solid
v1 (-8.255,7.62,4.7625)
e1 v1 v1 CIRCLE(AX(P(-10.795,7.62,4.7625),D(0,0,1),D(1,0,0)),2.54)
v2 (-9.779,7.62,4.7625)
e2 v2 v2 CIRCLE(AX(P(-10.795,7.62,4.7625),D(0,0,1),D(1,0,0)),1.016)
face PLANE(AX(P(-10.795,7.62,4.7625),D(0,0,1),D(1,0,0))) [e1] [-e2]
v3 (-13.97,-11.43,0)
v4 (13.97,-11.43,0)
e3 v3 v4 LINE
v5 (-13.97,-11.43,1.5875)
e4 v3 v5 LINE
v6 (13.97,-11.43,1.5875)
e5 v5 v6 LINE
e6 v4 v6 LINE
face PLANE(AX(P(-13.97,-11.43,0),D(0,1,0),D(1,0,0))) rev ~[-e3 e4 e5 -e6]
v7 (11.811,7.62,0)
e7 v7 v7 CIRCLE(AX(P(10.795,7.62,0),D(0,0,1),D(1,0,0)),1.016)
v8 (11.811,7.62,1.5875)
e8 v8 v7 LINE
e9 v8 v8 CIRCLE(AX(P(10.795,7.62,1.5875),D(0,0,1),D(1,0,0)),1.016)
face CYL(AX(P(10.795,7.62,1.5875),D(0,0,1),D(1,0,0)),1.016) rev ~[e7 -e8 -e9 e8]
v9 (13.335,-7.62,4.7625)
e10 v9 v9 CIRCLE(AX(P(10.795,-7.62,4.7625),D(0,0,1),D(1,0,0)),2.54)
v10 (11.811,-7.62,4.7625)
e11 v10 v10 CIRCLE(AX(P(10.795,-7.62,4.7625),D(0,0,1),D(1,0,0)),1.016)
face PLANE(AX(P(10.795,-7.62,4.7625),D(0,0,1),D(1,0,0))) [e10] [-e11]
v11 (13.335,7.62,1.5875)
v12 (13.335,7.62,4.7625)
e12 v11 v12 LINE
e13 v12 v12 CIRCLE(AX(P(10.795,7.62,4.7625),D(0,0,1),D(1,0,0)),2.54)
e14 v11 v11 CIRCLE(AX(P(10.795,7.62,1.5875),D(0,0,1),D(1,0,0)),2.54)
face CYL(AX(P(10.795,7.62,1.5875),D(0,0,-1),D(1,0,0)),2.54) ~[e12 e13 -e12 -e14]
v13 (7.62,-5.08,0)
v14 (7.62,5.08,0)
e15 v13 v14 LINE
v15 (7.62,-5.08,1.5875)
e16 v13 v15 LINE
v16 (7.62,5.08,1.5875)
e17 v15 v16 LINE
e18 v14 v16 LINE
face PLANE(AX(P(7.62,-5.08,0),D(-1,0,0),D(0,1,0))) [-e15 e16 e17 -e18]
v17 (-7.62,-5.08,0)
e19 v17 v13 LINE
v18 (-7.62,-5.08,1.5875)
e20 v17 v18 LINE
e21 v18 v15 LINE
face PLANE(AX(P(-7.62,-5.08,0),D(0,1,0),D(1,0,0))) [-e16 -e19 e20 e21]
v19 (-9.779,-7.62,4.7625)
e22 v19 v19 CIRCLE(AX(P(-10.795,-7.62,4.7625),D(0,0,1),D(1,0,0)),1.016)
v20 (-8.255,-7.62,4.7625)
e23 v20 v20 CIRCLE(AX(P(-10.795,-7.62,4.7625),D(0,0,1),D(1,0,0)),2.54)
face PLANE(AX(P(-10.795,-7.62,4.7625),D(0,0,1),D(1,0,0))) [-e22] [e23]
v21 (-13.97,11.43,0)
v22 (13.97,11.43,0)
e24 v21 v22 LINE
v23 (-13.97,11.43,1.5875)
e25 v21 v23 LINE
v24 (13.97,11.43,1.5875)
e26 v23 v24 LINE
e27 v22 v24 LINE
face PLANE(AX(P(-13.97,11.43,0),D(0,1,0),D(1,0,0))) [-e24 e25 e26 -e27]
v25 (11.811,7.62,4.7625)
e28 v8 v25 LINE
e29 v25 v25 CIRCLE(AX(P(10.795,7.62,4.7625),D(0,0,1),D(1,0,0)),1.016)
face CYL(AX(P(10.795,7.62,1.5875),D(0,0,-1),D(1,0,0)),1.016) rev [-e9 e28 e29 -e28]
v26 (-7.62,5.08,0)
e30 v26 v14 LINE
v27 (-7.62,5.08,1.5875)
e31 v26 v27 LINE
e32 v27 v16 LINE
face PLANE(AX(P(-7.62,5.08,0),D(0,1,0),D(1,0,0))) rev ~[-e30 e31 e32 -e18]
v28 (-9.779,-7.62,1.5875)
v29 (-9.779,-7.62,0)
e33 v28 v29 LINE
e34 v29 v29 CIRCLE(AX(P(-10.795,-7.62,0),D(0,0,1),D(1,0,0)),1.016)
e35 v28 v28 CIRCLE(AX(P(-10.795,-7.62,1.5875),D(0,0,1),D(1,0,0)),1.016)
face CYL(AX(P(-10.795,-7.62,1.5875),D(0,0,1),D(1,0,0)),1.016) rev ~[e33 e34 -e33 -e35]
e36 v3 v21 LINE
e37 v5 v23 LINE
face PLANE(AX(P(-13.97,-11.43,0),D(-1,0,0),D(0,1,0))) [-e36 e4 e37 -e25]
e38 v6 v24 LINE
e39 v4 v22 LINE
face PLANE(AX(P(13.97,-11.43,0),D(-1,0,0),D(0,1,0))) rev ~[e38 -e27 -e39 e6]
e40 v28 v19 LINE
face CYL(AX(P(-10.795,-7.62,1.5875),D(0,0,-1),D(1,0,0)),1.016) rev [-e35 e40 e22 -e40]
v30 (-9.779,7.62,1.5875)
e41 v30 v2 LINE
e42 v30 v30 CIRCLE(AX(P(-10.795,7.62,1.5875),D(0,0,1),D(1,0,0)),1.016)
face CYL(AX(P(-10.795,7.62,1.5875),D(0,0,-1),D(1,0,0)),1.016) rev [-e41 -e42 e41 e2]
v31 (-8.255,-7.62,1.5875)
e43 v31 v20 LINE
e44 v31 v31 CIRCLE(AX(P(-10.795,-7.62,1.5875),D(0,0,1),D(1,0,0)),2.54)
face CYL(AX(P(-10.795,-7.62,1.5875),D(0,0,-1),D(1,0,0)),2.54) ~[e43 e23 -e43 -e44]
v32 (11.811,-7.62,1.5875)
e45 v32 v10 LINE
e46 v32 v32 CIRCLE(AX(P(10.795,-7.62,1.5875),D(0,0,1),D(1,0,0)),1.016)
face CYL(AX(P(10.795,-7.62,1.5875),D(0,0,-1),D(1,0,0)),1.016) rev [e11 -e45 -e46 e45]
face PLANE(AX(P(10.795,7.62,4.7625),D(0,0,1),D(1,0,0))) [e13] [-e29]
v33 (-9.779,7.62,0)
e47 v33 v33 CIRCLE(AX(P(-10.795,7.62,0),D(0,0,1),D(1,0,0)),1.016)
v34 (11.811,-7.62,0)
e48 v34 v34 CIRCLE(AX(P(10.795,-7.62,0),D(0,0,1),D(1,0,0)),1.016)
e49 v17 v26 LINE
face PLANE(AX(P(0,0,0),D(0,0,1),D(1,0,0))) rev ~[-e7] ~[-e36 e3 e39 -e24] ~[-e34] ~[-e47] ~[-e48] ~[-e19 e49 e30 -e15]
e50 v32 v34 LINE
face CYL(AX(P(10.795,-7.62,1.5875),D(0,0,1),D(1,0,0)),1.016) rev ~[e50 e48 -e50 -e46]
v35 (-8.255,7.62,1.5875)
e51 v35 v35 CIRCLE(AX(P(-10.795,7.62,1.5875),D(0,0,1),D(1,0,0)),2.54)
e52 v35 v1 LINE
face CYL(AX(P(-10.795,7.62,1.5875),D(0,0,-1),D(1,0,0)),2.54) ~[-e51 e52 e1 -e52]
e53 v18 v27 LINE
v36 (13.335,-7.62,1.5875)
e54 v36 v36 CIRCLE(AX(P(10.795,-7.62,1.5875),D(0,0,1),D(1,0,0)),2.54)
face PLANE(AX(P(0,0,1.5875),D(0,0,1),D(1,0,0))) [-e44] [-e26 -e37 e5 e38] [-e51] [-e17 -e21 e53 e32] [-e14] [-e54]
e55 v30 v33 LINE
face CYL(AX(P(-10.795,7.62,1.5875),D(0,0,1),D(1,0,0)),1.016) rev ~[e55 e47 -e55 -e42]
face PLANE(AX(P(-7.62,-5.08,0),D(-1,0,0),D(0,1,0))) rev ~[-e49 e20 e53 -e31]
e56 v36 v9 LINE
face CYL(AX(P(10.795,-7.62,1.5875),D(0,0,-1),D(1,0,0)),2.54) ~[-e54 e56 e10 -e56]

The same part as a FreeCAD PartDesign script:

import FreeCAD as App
import Part
import Sketcher
Q = App.Units.Quantity

doc = App.newDocument("Part")
params = doc.addObject("Spreadsheet::Sheet", "Params")
for row, (alias, value) in enumerate([
    ("sketch1_width", "1.1 in"),
    ("sketch1_width2", "0.6 in"),
    ("sketch1_height", "0.9 in"),
    ("sketch1_height2", "0.4 in"),
    ("pad1_length", "0.0625 in"),
    ("sketch2_diameter", "0.2 in"),
    ("sketch2_diameter2", "0.08 in"),
    ("pad2_length", "0.125 in"),
    ("sketch3_diameter", "0.08 in"),
    ("pocket1_length", "1 in"),
], start=1):
    params.set(f"A{row}", alias)
    params.set(f"B{row}", "=" + value)
    params.setAlias(f"B{row}", alias)

body = doc.addObject("PartDesign::Body", "Body")

# Sketch on XY plane
sketch1 = doc.addObject("Sketcher::SketchObject", "Sketch")
body.addObject(sketch1)
sketch1.AttachmentSupport = (doc.XY_Plane, [""])
sketch1.MapMode = "FlatFace"
sketch1.addGeometry(Part.LineSegment(App.Vector(-14, 11, 0), App.Vector(-14, -11, 0)), False)
sketch1.addGeometry(Part.LineSegment(App.Vector(-14, -11, 0), App.Vector(14, -11, 0)), False)
sketch1.addGeometry(Part.LineSegment(App.Vector(14, -11, 0), App.Vector(14, 11, 0)), False)
sketch1.addGeometry(Part.LineSegment(App.Vector(14, 11, 0), App.Vector(-14, 11, 0)), False)
sketch1.addGeometry(Part.LineSegment(App.Vector(8, -5, 0), App.Vector(-8, -5, 0)), False)
sketch1.addGeometry(Part.LineSegment(App.Vector(-8, -5, 0), App.Vector(-8, 5, 0)), False)
sketch1.addGeometry(Part.LineSegment(App.Vector(-8, 5, 0), App.Vector(8, 5, 0)), False)
sketch1.addGeometry(Part.LineSegment(App.Vector(8, 5, 0), App.Vector(8, -5, 0)), False)
sketch1.addConstraint(Sketcher.Constraint("Coincident", 0, 2, 1, 1))
sketch1.addConstraint(Sketcher.Constraint("Coincident", 1, 2, 2, 1))
sketch1.addConstraint(Sketcher.Constraint("Coincident", 2, 2, 3, 1))
sketch1.addConstraint(Sketcher.Constraint("Coincident", 3, 2, 0, 1))
sketch1.addConstraint(Sketcher.Constraint("Coincident", 4, 2, 5, 1))
sketch1.addConstraint(Sketcher.Constraint("Coincident", 5, 2, 6, 1))
sketch1.addConstraint(Sketcher.Constraint("Coincident", 6, 2, 7, 1))
sketch1.addConstraint(Sketcher.Constraint("Coincident", 7, 2, 4, 1))
sketch1.addConstraint(Sketcher.Constraint("Vertical", 0))
sketch1.addConstraint(Sketcher.Constraint("Horizontal", 1))
sketch1.addConstraint(Sketcher.Constraint("Vertical", 2))
sketch1.addConstraint(Sketcher.Constraint("Horizontal", 3))
sketch1.addConstraint(Sketcher.Constraint("Horizontal", 4))
sketch1.addConstraint(Sketcher.Constraint("Vertical", 5))
sketch1.addConstraint(Sketcher.Constraint("Horizontal", 6))
sketch1.addConstraint(Sketcher.Constraint("Vertical", 7))
sketch1.addConstraint(Sketcher.Constraint("Symmetric", 0, 2, 2, 2, -1, 1))
sketch1.addConstraint(Sketcher.Constraint("Symmetric", 4, 2, 6, 2, -1, 1))
sketch1.addConstraint(Sketcher.Constraint("DistanceX", 1, 1, 1, 2, Q("1.1 in")))
sketch1.addConstraint(Sketcher.Constraint("DistanceX", 4, 2, 4, 1, Q("0.6 in")))
sketch1.addConstraint(Sketcher.Constraint("DistanceY", 0, 2, 0, 1, Q("0.9 in")))
sketch1.addConstraint(Sketcher.Constraint("DistanceY", 5, 1, 5, 2, Q("0.4 in")))
sketch1.setExpression("Constraints[18]", "Params.sketch1_width")
sketch1.setExpression("Constraints[19]", "Params.sketch1_width2")
sketch1.setExpression("Constraints[20]", "Params.sketch1_height")
sketch1.setExpression("Constraints[21]", "Params.sketch1_height2")
pad1 = doc.addObject("PartDesign::Pad", "Pad")
body.addObject(pad1)
pad1.Profile = sketch1
pad1.setExpression("Length", "Params.pad1_length")

# Sketch on XY plane
sketch2 = doc.addObject("Sketcher::SketchObject", "Sketch001")
body.addObject(sketch2)
sketch2.AttachmentSupport = (doc.XY_Plane, [""])
sketch2.MapMode = "FlatFace"
sketch2.AttachmentOffset = App.Placement(App.Vector(0, 0, 0.0625 * 25.4), App.Rotation())
sketch2.addGeometry(Part.Circle(App.Vector(-10.8, -7.6, 0), App.Vector(0, 0, 1), 2.5), False)
sketch2.addGeometry(Part.Circle(App.Vector(-10.8, -7.6, 0), App.Vector(0, 0, 1), 1), False)
sketch2.addGeometry(Part.Circle(App.Vector(-10.8, 7.6, 0), App.Vector(0, 0, 1), 2.5), False)
sketch2.addGeometry(Part.Circle(App.Vector(-10.8, 7.6, 0), App.Vector(0, 0, 1), 1), False)
sketch2.addGeometry(Part.Circle(App.Vector(10.8, -7.6, 0), App.Vector(0, 0, 1), 2.5), False)
sketch2.addGeometry(Part.Circle(App.Vector(10.8, -7.6, 0), App.Vector(0, 0, 1), 1), False)
sketch2.addGeometry(Part.Circle(App.Vector(10.8, 7.6, 0), App.Vector(0, 0, 1), 2.5), False)
sketch2.addGeometry(Part.Circle(App.Vector(10.8, 7.6, 0), App.Vector(0, 0, 1), 1), False)
sketch2.addConstraint(Sketcher.Constraint("Coincident", 1, 3, 0, 3))
sketch2.addConstraint(Sketcher.Constraint("Coincident", 3, 3, 2, 3))
sketch2.addConstraint(Sketcher.Constraint("Coincident", 5, 3, 4, 3))
sketch2.addConstraint(Sketcher.Constraint("Coincident", 7, 3, 6, 3))
sketch2.addConstraint(Sketcher.Constraint("Equal", 0, 2))
sketch2.addConstraint(Sketcher.Constraint("Equal", 1, 3))
sketch2.addConstraint(Sketcher.Constraint("Equal", 2, 4))
sketch2.addConstraint(Sketcher.Constraint("Equal", 3, 5))
sketch2.addConstraint(Sketcher.Constraint("Equal", 4, 6))
sketch2.addConstraint(Sketcher.Constraint("Equal", 5, 7))
sketch2.addConstraint(Sketcher.Constraint("Symmetric", 2, 3, 4, 3, -1, 1))
sketch2.addConstraint(Sketcher.Constraint("Symmetric", 0, 3, 6, 3, -1, 1))
sketch2.addConstraint(Sketcher.Constraint("Symmetric", 0, 3, 4, 3, -2))
sketch2.addConstraint(Sketcher.Constraint("Diameter", 0, Q("0.2 in")))
sketch2.addConstraint(Sketcher.Constraint("Diameter", 1, Q("0.08 in")))
sketch2.addConstraint(Sketcher.Constraint("DistanceY", 0, 3, -1, 1, Q("0.3 in")))
sketch2.addConstraint(Sketcher.Constraint("DistanceX", 0, 3, 4, 3, Q("0.85 in")))
sketch2.setExpression("Constraints[13]", "Params.sketch2_diameter")
sketch2.setExpression("Constraints[14]", "Params.sketch2_diameter2")
pad2 = doc.addObject("PartDesign::Pad", "Pad001")
body.addObject(pad2)
pad2.Profile = sketch2
pad2.setExpression("Length", "Params.pad2_length")

# Sketch on XY plane
sketch3 = doc.addObject("Sketcher::SketchObject", "Sketch002")
body.addObject(sketch3)
sketch3.AttachmentSupport = (doc.XY_Plane, [""])
sketch3.MapMode = "FlatFace"
sketch3.AttachmentOffset = App.Placement(App.Vector(0, 0, 0.0625 * 25.4), App.Rotation())
sketch3.addGeometry(Part.Circle(App.Vector(10.8, -7.6, 0), App.Vector(0, 0, 1), 1), False)
sketch3.addGeometry(Part.Circle(App.Vector(10.8, 7.6, 0), App.Vector(0, 0, 1), 1), False)
sketch3.addGeometry(Part.Circle(App.Vector(-10.8, 7.6, 0), App.Vector(0, 0, 1), 1), False)
sketch3.addGeometry(Part.Circle(App.Vector(-10.8, -7.6, 0), App.Vector(0, 0, 1), 1), False)
sketch3.addConstraint(Sketcher.Constraint("Equal", 0, 1))
sketch3.addConstraint(Sketcher.Constraint("Equal", 1, 2))
sketch3.addConstraint(Sketcher.Constraint("Equal", 2, 3))
sketch3.addConstraint(Sketcher.Constraint("Symmetric", 0, 3, 2, 3, -1, 1))
sketch3.addConstraint(Sketcher.Constraint("Symmetric", 1, 3, 3, 3, -1, 1))
sketch3.addConstraint(Sketcher.Constraint("Symmetric", 1, 3, 2, 3, -2))
sketch3.addConstraint(Sketcher.Constraint("Diameter", 0, Q("0.08 in")))
sketch3.addConstraint(Sketcher.Constraint("DistanceY", 0, 3, -1, 1, Q("0.3 in")))
sketch3.addConstraint(Sketcher.Constraint("DistanceX", 2, 3, 1, 3, Q("0.85 in")))
sketch3.setExpression("Constraints[6]", "Params.sketch3_diameter")
pocket1 = doc.addObject("PartDesign::Pocket", "Pocket")
body.addObject(pocket1)
pocket1.Profile = sketch3
pocket1.setExpression("Length", "Params.pocket1_length")

doc.recompute()
